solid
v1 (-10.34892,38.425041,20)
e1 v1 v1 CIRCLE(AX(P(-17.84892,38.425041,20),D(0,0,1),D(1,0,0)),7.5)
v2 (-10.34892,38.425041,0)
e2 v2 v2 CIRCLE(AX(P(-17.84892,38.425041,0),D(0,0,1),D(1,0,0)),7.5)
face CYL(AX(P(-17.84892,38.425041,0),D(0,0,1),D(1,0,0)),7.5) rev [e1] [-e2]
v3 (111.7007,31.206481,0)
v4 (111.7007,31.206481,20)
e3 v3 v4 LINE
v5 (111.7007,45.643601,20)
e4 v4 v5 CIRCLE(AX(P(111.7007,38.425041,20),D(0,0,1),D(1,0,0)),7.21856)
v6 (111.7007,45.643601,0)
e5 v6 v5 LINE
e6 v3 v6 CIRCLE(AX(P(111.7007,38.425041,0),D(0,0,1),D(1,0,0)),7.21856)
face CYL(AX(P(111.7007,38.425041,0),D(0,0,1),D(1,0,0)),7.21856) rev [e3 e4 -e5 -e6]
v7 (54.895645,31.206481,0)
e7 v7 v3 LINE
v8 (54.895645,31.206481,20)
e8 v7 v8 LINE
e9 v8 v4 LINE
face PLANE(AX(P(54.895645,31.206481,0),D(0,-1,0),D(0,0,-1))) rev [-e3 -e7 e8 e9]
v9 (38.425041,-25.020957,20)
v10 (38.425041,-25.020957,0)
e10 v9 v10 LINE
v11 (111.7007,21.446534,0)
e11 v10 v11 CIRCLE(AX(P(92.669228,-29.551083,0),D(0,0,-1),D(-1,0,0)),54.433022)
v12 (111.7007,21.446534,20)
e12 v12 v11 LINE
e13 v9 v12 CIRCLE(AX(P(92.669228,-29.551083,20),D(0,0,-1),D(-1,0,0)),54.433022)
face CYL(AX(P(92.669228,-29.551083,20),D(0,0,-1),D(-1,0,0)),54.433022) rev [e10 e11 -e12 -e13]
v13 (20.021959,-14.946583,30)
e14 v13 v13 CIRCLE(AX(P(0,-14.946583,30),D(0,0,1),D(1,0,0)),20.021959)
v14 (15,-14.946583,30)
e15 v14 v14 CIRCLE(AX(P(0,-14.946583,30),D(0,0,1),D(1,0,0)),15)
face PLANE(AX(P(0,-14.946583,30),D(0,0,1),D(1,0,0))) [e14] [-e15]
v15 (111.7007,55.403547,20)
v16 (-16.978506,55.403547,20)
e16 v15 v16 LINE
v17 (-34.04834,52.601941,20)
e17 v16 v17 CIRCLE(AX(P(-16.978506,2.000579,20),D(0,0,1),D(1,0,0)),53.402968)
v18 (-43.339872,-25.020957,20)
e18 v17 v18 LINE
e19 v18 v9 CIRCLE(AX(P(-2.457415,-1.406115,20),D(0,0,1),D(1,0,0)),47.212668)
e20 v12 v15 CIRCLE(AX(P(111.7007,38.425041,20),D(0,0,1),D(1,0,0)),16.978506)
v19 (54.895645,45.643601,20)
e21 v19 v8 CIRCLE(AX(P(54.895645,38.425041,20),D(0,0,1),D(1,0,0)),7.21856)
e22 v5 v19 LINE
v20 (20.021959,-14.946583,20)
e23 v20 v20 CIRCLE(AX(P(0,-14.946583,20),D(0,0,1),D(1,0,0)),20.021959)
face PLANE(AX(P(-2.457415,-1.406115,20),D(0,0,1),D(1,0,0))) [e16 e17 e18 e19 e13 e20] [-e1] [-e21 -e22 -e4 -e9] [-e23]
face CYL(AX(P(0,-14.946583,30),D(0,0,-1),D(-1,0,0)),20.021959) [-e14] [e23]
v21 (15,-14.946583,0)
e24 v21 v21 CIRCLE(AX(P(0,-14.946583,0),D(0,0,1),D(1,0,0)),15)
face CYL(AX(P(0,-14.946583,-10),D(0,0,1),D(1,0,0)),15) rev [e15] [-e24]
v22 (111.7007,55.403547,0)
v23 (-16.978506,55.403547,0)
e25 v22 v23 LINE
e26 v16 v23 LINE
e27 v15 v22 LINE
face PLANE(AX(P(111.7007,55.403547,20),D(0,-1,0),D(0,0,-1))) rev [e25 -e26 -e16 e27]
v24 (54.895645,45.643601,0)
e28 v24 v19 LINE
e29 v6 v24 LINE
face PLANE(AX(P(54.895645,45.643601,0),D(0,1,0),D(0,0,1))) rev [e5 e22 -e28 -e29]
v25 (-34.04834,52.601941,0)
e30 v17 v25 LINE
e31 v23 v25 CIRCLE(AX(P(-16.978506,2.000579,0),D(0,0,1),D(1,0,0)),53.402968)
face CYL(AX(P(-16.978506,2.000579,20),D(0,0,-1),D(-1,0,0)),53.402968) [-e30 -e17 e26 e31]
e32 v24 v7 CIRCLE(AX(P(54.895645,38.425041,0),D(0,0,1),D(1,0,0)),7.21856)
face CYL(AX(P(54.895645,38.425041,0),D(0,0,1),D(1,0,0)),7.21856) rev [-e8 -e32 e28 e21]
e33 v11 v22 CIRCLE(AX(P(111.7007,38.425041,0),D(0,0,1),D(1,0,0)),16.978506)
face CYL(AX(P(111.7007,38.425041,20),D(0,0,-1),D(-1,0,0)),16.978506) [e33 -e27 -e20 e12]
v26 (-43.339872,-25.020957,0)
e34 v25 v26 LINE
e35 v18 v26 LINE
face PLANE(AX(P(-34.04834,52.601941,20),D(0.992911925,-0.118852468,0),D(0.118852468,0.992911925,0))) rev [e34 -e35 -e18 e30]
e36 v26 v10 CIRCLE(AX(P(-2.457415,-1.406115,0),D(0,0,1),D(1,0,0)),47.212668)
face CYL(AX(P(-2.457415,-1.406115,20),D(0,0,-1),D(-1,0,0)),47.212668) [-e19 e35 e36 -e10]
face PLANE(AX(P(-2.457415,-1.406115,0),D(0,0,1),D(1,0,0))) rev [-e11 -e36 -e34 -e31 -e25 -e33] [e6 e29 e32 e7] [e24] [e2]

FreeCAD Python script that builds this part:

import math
import FreeCAD as App
import Part
import Sketcher
from FreeCAD import Vector
Q = App.Units.Quantity

doc = App.newDocument("Part")
body = doc.addObject("PartDesign::Body", "Body")

sketch1 = body.newObject("Sketcher::SketchObject", "Sketch")
sketch1.AttachmentSupport = (doc.getObject("XY_Plane"), [""])
sketch1.MapMode = "FlatFace"
sketch1.addGeometry([
    Part.LineSegment(Vector(112, 55, 0), Vector(-17, 55, 0)),
    Part.ArcOfCircle(Part.Circle(Vector(-17, 2, 0), Vector(0, 0, 1), 53), math.radians(90), math.radians(108.64)),
    Part.LineSegment(Vector(-34, 53, 0), Vector(-43, -25, 0)),
    Part.ArcOfCircle(Part.Circle(Vector(-2, -1, 0), Vector(0, 0, 1), 47), math.radians(-150), math.radians(-30)),
    Part.ArcOfCircle(Part.Circle(Vector(93, -30, 0), Vector(0, 0, 1), 54), math.radians(70), math.radians(175)),
    Part.ArcOfCircle(Part.Circle(Vector(112, 38, 0), Vector(0, 0, 1), 17), math.radians(-90), math.radians(90)),
], False)
sketch1.addConstraint([
    Sketcher.Constraint("Tangent", 0, 2, 1, 1),
    Sketcher.Constraint("Coincident", 1, 2, 2, 1),
    Sketcher.Constraint("Coincident", 2, 2, 3, 1),
    Sketcher.Constraint("Coincident", 3, 2, 4, 2),
    Sketcher.Constraint("Coincident", 4, 1, 5, 1),
    Sketcher.Constraint("Tangent", 5, 2, 0, 1),
    Sketcher.Constraint("Horizontal", 0),
    Sketcher.Constraint("Horizontal", 2, 2, 3, 2),
    Sketcher.Constraint("Vertical", 5, 3, 4, 1),
    Sketcher.Constraint("Radius", 1, Q("53.402968 mm")),
    Sketcher.Constraint("Radius", 3, Q("47.212668 mm")),
    Sketcher.Constraint("Radius", 4, Q("54.433022 mm")),
    Sketcher.Constraint("Radius", 5, Q("16.978506 mm")),
    Sketcher.Constraint("DistanceX", -1, 1, 5, 3, Q("111.7007 mm")),
    Sketcher.Constraint("DistanceY", 5, 3, 1, 2, Q("14.1769 mm")),
    Sketcher.Constraint("DistanceX", 2, 2, 4, 3, Q("136.0091 mm")),
    Sketcher.Constraint("DistanceX", 0, 2, 0, 1, Q("128.679206 mm")),
    Sketcher.Constraint("DistanceY", -1, 1, 1, 3, Q("2.000579 mm")),
    Sketcher.Constraint("DistanceX", -1, 1, 4, 3, Q("92.669228 mm")),
    Sketcher.Constraint("DistanceX", -1, 1, 3, 2, Q("38.425041 mm")),
])
pad1 = body.newObject("PartDesign::Pad", "Pad")
pad1.Profile = sketch1
pad1.Length = 20

sketch2 = body.newObject("Sketcher::SketchObject", "Sketch001")
sketch2.AttachmentSupport = (doc.getObject("XY_Plane"), [""])
sketch2.MapMode = "FlatFace"
sketch2.AttachmentOffset = App.Placement(Vector(0, 0, 20), App.Rotation())
sketch2.addGeometry([
    Part.Circle(Vector(-18, 38, 0), Vector(0, 0, 1), 8),
    Part.LineSegment(Vector(112, 46, 0), Vector(55, 46, 0)),
    Part.ArcOfCircle(Part.Circle(Vector(55, 38, 0), Vector(0, 0, 1), 7), math.radians(90), math.radians(270)),
    Part.LineSegment(Vector(55, 31, 0), Vector(112, 31, 0)),
    Part.ArcOfCircle(Part.Circle(Vector(112, 38, 0), Vector(0, 0, 1), 7), math.radians(-90), math.radians(90)),
], False)
sketch2.addConstraint([
    Sketcher.Constraint("Tangent", 1, 2, 2, 1),
    Sketcher.Constraint("Tangent", 2, 2, 3, 1),
    Sketcher.Constraint("Tangent", 3, 2, 4, 1),
    Sketcher.Constraint("Tangent", 4, 2, 1, 1),
    Sketcher.Constraint("Horizontal", 1),
    Sketcher.Constraint("Horizontal", 3),
    Sketcher.Constraint("Horizontal", 0, 3, 2, 3),
    Sketcher.Constraint("Diameter", 0, Q("15 mm")),
    Sketcher.Constraint("Radius", 2, Q("7.21856 mm")),
    Sketcher.Constraint("DistanceX", -1, 1, 4, 3, Q("111.7007 mm")),
    Sketcher.Constraint("DistanceY", -1, 1, 1, 2, Q("45.643601 mm")),
    Sketcher.Constraint("DistanceX", 1, 2, 1, 1, Q("56.805055 mm")),
    Sketcher.Constraint("DistanceX", 0, 3, -1, 1, Q("17.84892 mm")),
])
pocket1 = body.newObject("PartDesign::Pocket", "Pocket")
pocket1.Profile = sketch2
pocket1.Length = 20

sketch3 = body.newObject("Sketcher::SketchObject", "Sketch002")
sketch3.AttachmentSupport = (doc.getObject("XY_Plane"), [""])
sketch3.MapMode = "FlatFace"
sketch3.AttachmentOffset = App.Placement(Vector(0, 0, 20), App.Rotation())
sketch3.addGeometry(Part.Circle(Vector(0, -15, 0), Vector(0, 0, 1), 20), False)
sketch3.addConstraint([
    Sketcher.Constraint("PointOnObject", 0, 3, -2),
    Sketcher.Constraint("Diameter", 0, Q("40.043919 mm")),
    Sketcher.Constraint("DistanceY", 0, 3, -1, 1, Q("14.946583 mm")),
])
pad2 = body.newObject("PartDesign::Pad", "Pad001")
pad2.Profile = sketch3
pad2.Length = 10

sketch4 = body.newObject("Sketcher::SketchObject", "Sketch003")
sketch4.AttachmentSupport = (doc.getObject("XY_Plane"), [""])
sketch4.MapMode = "FlatFace"
sketch4.AttachmentOffset = App.Placement(Vector(0, 0, 30), App.Rotation())
sketch4.addGeometry(Part.Circle(Vector(0, -15, 0), Vector(0, 0, 1), 15), False)
sketch4.addConstraint([
    Sketcher.Constraint("PointOnObject", 0, 3, -2),
    Sketcher.Constraint("Diameter", 0, Q("30 mm")),
    Sketcher.Constraint("DistanceY", 0, 3, -1, 1, Q("14.946583 mm")),
])
pocket2 = body.newObject("PartDesign::Pocket", "Pocket001")
pocket2.Profile = sketch4
pocket2.Length = 40

doc.recompute()
